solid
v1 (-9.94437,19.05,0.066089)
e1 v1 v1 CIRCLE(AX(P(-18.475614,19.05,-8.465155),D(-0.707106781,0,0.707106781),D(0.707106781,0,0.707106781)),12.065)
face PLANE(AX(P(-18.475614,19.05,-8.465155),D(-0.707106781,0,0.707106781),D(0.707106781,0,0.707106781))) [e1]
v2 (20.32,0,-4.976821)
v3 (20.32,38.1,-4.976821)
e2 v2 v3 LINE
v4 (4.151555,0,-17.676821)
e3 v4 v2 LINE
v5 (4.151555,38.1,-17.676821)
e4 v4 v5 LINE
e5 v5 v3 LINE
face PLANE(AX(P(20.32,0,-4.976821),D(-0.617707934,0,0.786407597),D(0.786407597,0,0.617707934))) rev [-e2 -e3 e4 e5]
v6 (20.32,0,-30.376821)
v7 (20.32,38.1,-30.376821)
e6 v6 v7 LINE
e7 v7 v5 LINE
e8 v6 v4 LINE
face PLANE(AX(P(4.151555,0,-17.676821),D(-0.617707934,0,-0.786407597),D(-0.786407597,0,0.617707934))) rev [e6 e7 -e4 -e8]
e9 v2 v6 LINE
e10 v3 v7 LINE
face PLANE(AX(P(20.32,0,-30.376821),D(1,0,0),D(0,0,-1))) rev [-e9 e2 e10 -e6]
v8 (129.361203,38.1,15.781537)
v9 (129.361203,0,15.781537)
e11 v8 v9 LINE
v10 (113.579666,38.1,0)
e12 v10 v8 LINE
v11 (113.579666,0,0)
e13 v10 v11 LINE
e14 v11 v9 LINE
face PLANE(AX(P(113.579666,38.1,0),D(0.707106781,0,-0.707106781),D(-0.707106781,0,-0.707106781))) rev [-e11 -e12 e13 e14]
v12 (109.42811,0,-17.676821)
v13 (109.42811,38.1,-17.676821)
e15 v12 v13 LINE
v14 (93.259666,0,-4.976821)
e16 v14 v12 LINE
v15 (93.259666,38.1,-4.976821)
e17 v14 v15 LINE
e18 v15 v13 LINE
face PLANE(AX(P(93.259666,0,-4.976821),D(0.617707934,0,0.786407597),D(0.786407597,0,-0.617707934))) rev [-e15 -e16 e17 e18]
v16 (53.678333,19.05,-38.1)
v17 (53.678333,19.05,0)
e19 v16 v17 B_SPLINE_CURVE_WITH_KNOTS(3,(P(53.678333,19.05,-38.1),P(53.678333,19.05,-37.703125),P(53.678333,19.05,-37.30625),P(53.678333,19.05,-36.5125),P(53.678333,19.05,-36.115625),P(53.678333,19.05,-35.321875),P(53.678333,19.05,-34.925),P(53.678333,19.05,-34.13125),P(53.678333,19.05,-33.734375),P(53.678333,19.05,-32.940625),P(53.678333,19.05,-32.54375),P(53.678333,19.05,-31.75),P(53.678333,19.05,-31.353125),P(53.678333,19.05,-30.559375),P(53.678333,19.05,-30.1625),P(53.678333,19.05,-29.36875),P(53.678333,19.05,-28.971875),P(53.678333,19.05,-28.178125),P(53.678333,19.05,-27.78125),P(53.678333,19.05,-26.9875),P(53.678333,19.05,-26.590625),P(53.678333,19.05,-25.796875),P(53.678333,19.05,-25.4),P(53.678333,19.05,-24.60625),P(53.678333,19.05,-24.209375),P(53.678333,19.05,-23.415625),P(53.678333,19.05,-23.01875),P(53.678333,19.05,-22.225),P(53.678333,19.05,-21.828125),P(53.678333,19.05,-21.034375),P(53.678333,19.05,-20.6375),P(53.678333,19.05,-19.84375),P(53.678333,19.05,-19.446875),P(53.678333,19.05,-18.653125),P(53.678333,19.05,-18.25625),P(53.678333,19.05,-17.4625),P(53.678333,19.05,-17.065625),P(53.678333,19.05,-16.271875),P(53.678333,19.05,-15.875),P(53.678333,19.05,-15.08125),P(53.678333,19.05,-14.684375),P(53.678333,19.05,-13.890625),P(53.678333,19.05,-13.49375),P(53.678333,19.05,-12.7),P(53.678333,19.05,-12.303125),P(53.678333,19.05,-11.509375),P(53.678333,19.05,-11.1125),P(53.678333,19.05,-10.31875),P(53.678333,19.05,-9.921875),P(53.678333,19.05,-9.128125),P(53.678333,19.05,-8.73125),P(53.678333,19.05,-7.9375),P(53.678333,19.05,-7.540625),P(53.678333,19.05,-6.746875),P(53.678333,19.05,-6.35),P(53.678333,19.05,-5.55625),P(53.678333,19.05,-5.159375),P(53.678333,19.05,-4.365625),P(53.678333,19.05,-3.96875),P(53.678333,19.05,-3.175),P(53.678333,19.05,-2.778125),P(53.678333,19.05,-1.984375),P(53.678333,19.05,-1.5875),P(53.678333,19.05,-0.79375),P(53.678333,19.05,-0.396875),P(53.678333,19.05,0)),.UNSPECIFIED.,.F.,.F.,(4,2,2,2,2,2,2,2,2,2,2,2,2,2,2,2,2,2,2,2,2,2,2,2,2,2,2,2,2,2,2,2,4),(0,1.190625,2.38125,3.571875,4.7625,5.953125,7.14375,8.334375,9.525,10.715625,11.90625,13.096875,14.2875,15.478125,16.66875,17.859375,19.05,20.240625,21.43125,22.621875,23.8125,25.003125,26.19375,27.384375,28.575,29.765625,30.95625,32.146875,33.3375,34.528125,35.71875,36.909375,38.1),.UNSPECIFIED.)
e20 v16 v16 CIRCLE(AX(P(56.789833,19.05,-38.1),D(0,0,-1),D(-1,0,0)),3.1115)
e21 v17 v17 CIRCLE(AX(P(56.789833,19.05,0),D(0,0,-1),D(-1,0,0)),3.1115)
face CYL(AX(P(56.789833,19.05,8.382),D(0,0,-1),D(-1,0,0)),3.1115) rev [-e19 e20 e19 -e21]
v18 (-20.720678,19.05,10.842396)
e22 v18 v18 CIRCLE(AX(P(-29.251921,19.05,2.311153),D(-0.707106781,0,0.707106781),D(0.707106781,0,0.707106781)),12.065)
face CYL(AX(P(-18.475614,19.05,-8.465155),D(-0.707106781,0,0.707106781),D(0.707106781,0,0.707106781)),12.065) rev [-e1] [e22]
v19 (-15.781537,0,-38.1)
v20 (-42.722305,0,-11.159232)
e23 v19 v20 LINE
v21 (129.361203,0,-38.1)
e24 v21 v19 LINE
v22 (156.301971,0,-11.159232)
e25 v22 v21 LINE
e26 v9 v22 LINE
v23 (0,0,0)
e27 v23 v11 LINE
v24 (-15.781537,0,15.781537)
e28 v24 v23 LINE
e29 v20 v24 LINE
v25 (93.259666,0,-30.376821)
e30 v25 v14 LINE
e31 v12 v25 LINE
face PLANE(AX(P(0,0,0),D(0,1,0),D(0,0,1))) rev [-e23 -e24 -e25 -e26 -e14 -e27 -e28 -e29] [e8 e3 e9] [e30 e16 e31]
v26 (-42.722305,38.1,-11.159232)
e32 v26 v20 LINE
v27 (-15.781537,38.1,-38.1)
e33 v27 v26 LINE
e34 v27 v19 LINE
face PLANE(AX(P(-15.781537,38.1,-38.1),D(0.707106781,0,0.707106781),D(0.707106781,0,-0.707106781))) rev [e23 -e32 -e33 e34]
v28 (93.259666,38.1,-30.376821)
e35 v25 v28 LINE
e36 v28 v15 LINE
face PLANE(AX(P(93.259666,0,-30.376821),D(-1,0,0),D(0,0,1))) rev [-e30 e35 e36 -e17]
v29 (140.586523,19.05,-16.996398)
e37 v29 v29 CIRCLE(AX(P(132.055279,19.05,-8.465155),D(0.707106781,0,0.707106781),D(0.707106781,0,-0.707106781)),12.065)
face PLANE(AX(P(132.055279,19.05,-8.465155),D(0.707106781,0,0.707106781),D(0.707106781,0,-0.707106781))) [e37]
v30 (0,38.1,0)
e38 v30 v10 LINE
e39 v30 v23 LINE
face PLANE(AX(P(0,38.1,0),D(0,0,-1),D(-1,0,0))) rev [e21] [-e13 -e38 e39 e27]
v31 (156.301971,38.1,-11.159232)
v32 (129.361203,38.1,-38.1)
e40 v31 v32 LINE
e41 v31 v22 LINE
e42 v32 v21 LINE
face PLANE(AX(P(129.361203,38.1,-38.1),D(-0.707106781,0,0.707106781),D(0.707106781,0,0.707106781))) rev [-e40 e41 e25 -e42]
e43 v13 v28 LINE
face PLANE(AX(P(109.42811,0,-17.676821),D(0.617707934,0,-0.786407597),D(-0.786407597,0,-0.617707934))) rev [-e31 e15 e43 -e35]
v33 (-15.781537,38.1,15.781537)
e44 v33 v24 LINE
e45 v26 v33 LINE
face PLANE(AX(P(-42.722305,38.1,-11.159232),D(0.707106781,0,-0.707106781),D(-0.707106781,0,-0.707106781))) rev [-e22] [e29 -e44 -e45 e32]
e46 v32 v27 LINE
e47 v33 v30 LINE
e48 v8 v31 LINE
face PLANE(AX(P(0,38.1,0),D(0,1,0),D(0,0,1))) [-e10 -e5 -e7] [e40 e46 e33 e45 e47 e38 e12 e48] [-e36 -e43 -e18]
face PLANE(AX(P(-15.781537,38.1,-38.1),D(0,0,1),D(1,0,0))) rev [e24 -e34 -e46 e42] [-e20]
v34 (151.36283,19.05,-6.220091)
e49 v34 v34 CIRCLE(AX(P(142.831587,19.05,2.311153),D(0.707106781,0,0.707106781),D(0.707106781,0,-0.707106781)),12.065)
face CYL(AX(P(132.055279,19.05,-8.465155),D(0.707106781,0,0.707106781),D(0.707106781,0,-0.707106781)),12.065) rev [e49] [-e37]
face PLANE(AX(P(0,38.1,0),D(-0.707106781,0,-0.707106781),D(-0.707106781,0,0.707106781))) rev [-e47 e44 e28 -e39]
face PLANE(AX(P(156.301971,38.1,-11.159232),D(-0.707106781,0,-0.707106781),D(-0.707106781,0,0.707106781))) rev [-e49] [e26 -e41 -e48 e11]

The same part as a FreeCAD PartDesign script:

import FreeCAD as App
import Part
import Sketcher

V = App.Vector
Q = App.Units.Quantity


def add_polygon(sketch, points):
    """Adds a closed chain of lines whose ends are joined by coincident constraints."""
    first, n = sketch.GeometryCount, len(points)
    for a, b in zip(points, points[1:] + points[:1]):
        sketch.addGeometry(Part.LineSegment(App.Vector(*a, 0), App.Vector(*b, 0)), False)
    for i in range(n):
        sketch.addConstraint(Sketcher.Constraint("Coincident", first + i, 2, first + (i + 1) % n, 1))

doc = App.newDocument("Part")
body = doc.addObject("PartDesign::Body", "Body")

# Sketch on XZ plane
sketch1 = body.newObject("Sketcher::SketchObject", "Sketch")
sketch1.AttachmentSupport = (doc.getObject("XZ_Plane"), [""])
sketch1.MapMode = "FlatFace"
add_polygon(sketch1, [(0, 0), (113.579666, 0), (129.361203, 15.781537), (156.301971, -11.159232), (129.361203, -38.1), (-15.781537, -38.1), (-42.722305, -11.159232), (-15.781537, 15.781537)])  # lines 0-7
sketch1.addConstraint(Sketcher.Constraint("Horizontal", 0))
sketch1.addConstraint(Sketcher.Constraint("Horizontal", 4))
sketch1.addConstraint(Sketcher.Constraint("Coincident", 7, 2, -1, 1))
sketch1.addConstraint(Sketcher.Constraint("Perpendicular", 1, 2))
sketch1.addConstraint(Sketcher.Constraint("Perpendicular", 2, 3))
sketch1.addConstraint(Sketcher.Constraint("Perpendicular", 3, 5))
sketch1.addConstraint(Sketcher.Constraint("Perpendicular", 5, 6))
sketch1.addConstraint(Sketcher.Constraint("Perpendicular", 6, 7))
sketch1.addConstraint(Sketcher.Constraint("Horizontal", 2, 2, 5, 2))
sketch1.addConstraint(Sketcher.Constraint("Horizontal", 1, 2, 6, 2))
sketch1.addConstraint(Sketcher.Constraint("Vertical", 1, 2, 3, 2))
sketch1.addConstraint(Sketcher.Constraint("Vertical", 4, 2, 6, 2))
sketch1.addConstraint(Sketcher.Constraint("Distance", 2, Q("1.5 in")))
sketch1.addConstraint(Sketcher.Constraint("DistanceY", 3, 2, -1, 1, Q("1.5 in")))
sketch1.addConstraint(Sketcher.Constraint("DistanceX", 4, 2, 4, 1, 145.142739))
pad1 = body.newObject("PartDesign::Pad", "Pad")
pad1.Profile = sketch1
pad1.Length = Q("1.5 in")
pad1.Reversed = True

# Sketch on an angled plane
sketch2 = body.newObject("Sketcher::SketchObject", "Sketch001")
sketch2.Placement = App.Placement(V(-15.781537, 0, 15.781537), App.Rotation(V(0.707106781, 0, 0.707106781), V(0, 0.999999999, 0), V(-0.707106781, 0, 0.707106781), "ZXY"))
sketch2.addGeometry(Part.Circle(V(-19.05, 19.05, 0), V(0, 0, 1), 12.065), False)
sketch2.addConstraint(Sketcher.Constraint("Diameter", 0, Q("0.95 in")))
sketch2.addConstraint(Sketcher.Constraint("DistanceX", 0, 3, -1, 1, Q("0.75 in")))
sketch2.addConstraint(Sketcher.Constraint("DistanceY", -1, 1, 0, 3, Q("0.75 in")))
pocket1 = body.newObject("PartDesign::Pocket", "Pocket")
pocket1.Profile = sketch2
pocket1.Length = Q("0.6 in")

# Sketch on an angled plane
sketch3 = body.newObject("Sketcher::SketchObject", "Sketch002")
sketch3.Placement = App.Placement(V(72.57137, 0, 72.57137), App.Rotation(V(0.707106781, 0, -0.707106781), V(0, 0.999999999, 0), V(0.707106781, 0, 0.707106781), "ZXY"))
sketch3.addGeometry(Part.Circle(V(99.362952, 19.05, 0), V(0, 0, 1), 12.065), False)
sketch3.addConstraint(Sketcher.Constraint("Diameter", 0, Q("0.95 in")))
sketch3.addConstraint(Sketcher.Constraint("DistanceY", -1, 1, 0, 3, Q("0.75 in")))
sketch3.addConstraint(Sketcher.Constraint("DistanceX", -1, 1, 0, 3, 99.362952))
pocket2 = body.newObject("PartDesign::Pocket", "Pocket001")
pocket2.Profile = sketch3
pocket2.Length = Q("0.6 in")

# Sketch on XZ plane
sketch4 = body.newObject("Sketcher::SketchObject", "Sketch003")
sketch4.AttachmentSupport = (doc.getObject("XZ_Plane"), [""])
sketch4.MapMode = "FlatFace"
sketch4.AttachmentOffset = App.Placement(V(0, 0, -1.5 * 25.4), App.Rotation())
add_polygon(sketch4, [(20.32, -30.376821), (4.151555, -17.676821), (20.32, -4.976821)])  # lines 0-2
add_polygon(sketch4, [(93.259666, -30.376821), (93.259666, -4.976821), (109.42811, -17.676821)])  # lines 3-5
sketch4.addConstraint(Sketcher.Constraint("Vertical", 2))
sketch4.addConstraint(Sketcher.Constraint("Vertical", 3))
sketch4.addConstraint(Sketcher.Constraint("Parallel", 0, 4))
sketch4.addConstraint(Sketcher.Constraint("Parallel", 1, 5))
sketch4.addConstraint(Sketcher.Constraint("Horizontal", 1, 2, 3, 2))
sketch4.addConstraint(Sketcher.Constraint("Horizontal", 0, 2, 4, 2))
sketch4.addConstraint(Sketcher.Constraint("Horizontal", 2, 2, 5, 2))
sketch4.addConstraint(Sketcher.Constraint("DistanceY", 2, 2, 2, 1, Q("1 in")))
sketch4.addConstraint(Sketcher.Constraint("DistanceX", -1, 1, 1, 2, Q("0.8 in")))
sketch4.addConstraint(Sketcher.Constraint("Distance", 0, 20.559878))
sketch4.addConstraint(Sketcher.Constraint("DistanceY", 0, 2, -1, 1, 17.676821))
sketch4.addConstraint(Sketcher.Constraint("DistanceX", -1, 1, 4, 2, 109.42811))
pocket3 = body.newObject("PartDesign::Pocket", "Pocket002")
pocket3.Profile = sketch4
pocket3.Length = Q("1.5 in")
pocket3.Reversed = True

# Sketch on XY plane
sketch5 = body.newObject("Sketcher::SketchObject", "Sketch004")
sketch5.AttachmentSupport = (doc.getObject("XY_Plane"), [""])
sketch5.MapMode = "FlatFace"
sketch5.AttachmentOffset = App.Placement(V(0, 0, -1.5 * 25.4), App.Rotation())
sketch5.addGeometry(Part.Circle(V(56.789833, 19.05, 0), V(0, 0, 1), 3.1115), False)
sketch5.addConstraint(Sketcher.Constraint("Diameter", 0, Q("0.245 in")))
sketch5.addConstraint(Sketcher.Constraint("DistanceY", -1, 1, 0, 3, Q("0.75 in")))
sketch5.addConstraint(Sketcher.Constraint("DistanceX", -1, 1, 0, 3, 56.789833))
pocket4 = body.newObject("PartDesign::Pocket", "Pocket003")
pocket4.Profile = sketch5
pocket4.Length = Q("1.83 in")
pocket4.Reversed = True

doc.recompute()
